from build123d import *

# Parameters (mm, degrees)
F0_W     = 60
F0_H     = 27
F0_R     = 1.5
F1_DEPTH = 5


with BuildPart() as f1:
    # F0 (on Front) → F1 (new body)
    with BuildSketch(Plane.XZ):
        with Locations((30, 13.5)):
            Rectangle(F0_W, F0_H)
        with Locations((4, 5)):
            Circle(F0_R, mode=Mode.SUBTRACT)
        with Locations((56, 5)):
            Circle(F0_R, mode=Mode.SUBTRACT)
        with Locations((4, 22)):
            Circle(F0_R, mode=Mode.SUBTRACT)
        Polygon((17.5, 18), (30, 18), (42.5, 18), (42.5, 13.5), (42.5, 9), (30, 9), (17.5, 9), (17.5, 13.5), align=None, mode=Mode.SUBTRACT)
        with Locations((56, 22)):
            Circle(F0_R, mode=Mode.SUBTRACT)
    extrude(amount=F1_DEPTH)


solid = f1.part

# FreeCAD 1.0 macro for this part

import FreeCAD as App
import Part
import Sketcher

V = App.Vector

doc = App.newDocument("Part")
params = doc.addObject("Spreadsheet::Sheet", "Params")
for row, (alias, value) in enumerate([
    ("sketch1_diameter", "3 mm"),
    ("sketch1_width", "60 mm"),
    ("sketch1_width2", "25 mm"),
    ("sketch1_height", "27 mm"),
    ("sketch1_height2", "9 mm"),
    ("pad1_length", "5 mm"),
], start=1):
    params.set(f"A{row}", alias)
    params.set(f"B{row}", "=" + value)
    params.setAlias(f"B{row}", alias)

body = doc.addObject("PartDesign::Body", "Body")

# Sketch on XZ plane
sketch1 = body.newObject("Sketcher::SketchObject", "Sketch")
sketch1.AttachmentSupport = (doc.getObject("XZ_Plane"), [""])
sketch1.MapMode = "FlatFace"
sketch1.addGeometry([
    Part.LineSegment(V(0, 27, 0), V(0, 0, 0)),  # 0
    Part.LineSegment(V(0, 0, 0), V(60, 0, 0)),  # 1
    Part.LineSegment(V(60, 0, 0), V(60, 27, 0)),  # 2
    Part.LineSegment(V(60, 27, 0), V(0, 27, 0)),  # 3
    Part.Circle(V(4, 5, 0), V(0, 0, 1), 1.5),  # 4
    Part.Circle(V(56, 5, 0), V(0, 0, 1), 1.5),  # 5
    Part.Circle(V(4, 22, 0), V(0, 0, 1), 1.5),  # 6
    Part.LineSegment(V(17.5, 9, 0), V(17.5, 18, 0)),  # 7
    Part.LineSegment(V(17.5, 18, 0), V(42.5, 18, 0)),  # 8
    Part.LineSegment(V(42.5, 18, 0), V(42.5, 9, 0)),  # 9
    Part.LineSegment(V(42.5, 9, 0), V(17.5, 9, 0)),  # 10
    Part.Circle(V(56, 22, 0), V(0, 0, 1), 1.5),  # 11
], False)
sketch1.addConstraint([
    Sketcher.Constraint("Coincident", 0, 2, 1, 1),
    Sketcher.Constraint("Coincident", 1, 2, 2, 1),
    Sketcher.Constraint("Coincident", 2, 2, 3, 1),
    Sketcher.Constraint("Coincident", 3, 2, 0, 1),
    Sketcher.Constraint("Coincident", 7, 2, 8, 1),
    Sketcher.Constraint("Coincident", 8, 2, 9, 1),
    Sketcher.Constraint("Coincident", 9, 2, 10, 1),
    Sketcher.Constraint("Coincident", 10, 2, 7, 1),
    Sketcher.Constraint("Vertical", 0),
    Sketcher.Constraint("Horizontal", 1),
    Sketcher.Constraint("Vertical", 2),
    Sketcher.Constraint("Horizontal", 3),
    Sketcher.Constraint("Vertical", 7),
    Sketcher.Constraint("Horizontal", 8),
    Sketcher.Constraint("Vertical", 9),
    Sketcher.Constraint("Horizontal", 10),
    Sketcher.Constraint("Coincident", 0, 2, -1, 1),
    Sketcher.Constraint("Equal", 4, 5),
    Sketcher.Constraint("Equal", 5, 6),
    Sketcher.Constraint("Equal", 6, 11),
    Sketcher.Constraint("Horizontal", 4, 3, 5, 3),
    Sketcher.Constraint("Horizontal", 6, 3, 11, 3),
    Sketcher.Constraint("Vertical", 4, 3, 6, 3),
    Sketcher.Constraint("Vertical", 5, 3, 11, 3),
    Sketcher.Constraint("Diameter", 4, 3.0),
    Sketcher.Constraint("DistanceX", 1, 1, 1, 2, 60.0),
    Sketcher.Constraint("DistanceX", 8, 1, 8, 2, 25.0),
    Sketcher.Constraint("DistanceY", 0, 2, 0, 1, 27.0),
    Sketcher.Constraint("DistanceY", 7, 1, 7, 2, 9.0),
    Sketcher.Constraint("DistanceX", -1, 1, 4, 3, 4.0),
    Sketcher.Constraint("DistanceY", -1, 1, 4, 3, 5.0),
    Sketcher.Constraint("DistanceX", -1, 1, 5, 3, 56.0),
    Sketcher.Constraint("DistanceY", -1, 1, 6, 3, 22.0),
    Sketcher.Constraint("DistanceY", -1, 1, 7, 2, 18.0),
    Sketcher.Constraint("DistanceX", -1, 1, 7, 2, 17.5),
])
sketch1.setExpression("Constraints[24]", "Params.sketch1_diameter")
sketch1.setExpression("Constraints[25]", "Params.sketch1_width")
sketch1.setExpression("Constraints[26]", "Params.sketch1_width2")
sketch1.setExpression("Constraints[27]", "Params.sketch1_height")
sketch1.setExpression("Constraints[28]", "Params.sketch1_height2")
pad1 = body.newObject("PartDesign::Pad", "Pad")
pad1.Profile = sketch1
pad1.setExpression("Length", "Params.pad1_length")

doc.recompute()
